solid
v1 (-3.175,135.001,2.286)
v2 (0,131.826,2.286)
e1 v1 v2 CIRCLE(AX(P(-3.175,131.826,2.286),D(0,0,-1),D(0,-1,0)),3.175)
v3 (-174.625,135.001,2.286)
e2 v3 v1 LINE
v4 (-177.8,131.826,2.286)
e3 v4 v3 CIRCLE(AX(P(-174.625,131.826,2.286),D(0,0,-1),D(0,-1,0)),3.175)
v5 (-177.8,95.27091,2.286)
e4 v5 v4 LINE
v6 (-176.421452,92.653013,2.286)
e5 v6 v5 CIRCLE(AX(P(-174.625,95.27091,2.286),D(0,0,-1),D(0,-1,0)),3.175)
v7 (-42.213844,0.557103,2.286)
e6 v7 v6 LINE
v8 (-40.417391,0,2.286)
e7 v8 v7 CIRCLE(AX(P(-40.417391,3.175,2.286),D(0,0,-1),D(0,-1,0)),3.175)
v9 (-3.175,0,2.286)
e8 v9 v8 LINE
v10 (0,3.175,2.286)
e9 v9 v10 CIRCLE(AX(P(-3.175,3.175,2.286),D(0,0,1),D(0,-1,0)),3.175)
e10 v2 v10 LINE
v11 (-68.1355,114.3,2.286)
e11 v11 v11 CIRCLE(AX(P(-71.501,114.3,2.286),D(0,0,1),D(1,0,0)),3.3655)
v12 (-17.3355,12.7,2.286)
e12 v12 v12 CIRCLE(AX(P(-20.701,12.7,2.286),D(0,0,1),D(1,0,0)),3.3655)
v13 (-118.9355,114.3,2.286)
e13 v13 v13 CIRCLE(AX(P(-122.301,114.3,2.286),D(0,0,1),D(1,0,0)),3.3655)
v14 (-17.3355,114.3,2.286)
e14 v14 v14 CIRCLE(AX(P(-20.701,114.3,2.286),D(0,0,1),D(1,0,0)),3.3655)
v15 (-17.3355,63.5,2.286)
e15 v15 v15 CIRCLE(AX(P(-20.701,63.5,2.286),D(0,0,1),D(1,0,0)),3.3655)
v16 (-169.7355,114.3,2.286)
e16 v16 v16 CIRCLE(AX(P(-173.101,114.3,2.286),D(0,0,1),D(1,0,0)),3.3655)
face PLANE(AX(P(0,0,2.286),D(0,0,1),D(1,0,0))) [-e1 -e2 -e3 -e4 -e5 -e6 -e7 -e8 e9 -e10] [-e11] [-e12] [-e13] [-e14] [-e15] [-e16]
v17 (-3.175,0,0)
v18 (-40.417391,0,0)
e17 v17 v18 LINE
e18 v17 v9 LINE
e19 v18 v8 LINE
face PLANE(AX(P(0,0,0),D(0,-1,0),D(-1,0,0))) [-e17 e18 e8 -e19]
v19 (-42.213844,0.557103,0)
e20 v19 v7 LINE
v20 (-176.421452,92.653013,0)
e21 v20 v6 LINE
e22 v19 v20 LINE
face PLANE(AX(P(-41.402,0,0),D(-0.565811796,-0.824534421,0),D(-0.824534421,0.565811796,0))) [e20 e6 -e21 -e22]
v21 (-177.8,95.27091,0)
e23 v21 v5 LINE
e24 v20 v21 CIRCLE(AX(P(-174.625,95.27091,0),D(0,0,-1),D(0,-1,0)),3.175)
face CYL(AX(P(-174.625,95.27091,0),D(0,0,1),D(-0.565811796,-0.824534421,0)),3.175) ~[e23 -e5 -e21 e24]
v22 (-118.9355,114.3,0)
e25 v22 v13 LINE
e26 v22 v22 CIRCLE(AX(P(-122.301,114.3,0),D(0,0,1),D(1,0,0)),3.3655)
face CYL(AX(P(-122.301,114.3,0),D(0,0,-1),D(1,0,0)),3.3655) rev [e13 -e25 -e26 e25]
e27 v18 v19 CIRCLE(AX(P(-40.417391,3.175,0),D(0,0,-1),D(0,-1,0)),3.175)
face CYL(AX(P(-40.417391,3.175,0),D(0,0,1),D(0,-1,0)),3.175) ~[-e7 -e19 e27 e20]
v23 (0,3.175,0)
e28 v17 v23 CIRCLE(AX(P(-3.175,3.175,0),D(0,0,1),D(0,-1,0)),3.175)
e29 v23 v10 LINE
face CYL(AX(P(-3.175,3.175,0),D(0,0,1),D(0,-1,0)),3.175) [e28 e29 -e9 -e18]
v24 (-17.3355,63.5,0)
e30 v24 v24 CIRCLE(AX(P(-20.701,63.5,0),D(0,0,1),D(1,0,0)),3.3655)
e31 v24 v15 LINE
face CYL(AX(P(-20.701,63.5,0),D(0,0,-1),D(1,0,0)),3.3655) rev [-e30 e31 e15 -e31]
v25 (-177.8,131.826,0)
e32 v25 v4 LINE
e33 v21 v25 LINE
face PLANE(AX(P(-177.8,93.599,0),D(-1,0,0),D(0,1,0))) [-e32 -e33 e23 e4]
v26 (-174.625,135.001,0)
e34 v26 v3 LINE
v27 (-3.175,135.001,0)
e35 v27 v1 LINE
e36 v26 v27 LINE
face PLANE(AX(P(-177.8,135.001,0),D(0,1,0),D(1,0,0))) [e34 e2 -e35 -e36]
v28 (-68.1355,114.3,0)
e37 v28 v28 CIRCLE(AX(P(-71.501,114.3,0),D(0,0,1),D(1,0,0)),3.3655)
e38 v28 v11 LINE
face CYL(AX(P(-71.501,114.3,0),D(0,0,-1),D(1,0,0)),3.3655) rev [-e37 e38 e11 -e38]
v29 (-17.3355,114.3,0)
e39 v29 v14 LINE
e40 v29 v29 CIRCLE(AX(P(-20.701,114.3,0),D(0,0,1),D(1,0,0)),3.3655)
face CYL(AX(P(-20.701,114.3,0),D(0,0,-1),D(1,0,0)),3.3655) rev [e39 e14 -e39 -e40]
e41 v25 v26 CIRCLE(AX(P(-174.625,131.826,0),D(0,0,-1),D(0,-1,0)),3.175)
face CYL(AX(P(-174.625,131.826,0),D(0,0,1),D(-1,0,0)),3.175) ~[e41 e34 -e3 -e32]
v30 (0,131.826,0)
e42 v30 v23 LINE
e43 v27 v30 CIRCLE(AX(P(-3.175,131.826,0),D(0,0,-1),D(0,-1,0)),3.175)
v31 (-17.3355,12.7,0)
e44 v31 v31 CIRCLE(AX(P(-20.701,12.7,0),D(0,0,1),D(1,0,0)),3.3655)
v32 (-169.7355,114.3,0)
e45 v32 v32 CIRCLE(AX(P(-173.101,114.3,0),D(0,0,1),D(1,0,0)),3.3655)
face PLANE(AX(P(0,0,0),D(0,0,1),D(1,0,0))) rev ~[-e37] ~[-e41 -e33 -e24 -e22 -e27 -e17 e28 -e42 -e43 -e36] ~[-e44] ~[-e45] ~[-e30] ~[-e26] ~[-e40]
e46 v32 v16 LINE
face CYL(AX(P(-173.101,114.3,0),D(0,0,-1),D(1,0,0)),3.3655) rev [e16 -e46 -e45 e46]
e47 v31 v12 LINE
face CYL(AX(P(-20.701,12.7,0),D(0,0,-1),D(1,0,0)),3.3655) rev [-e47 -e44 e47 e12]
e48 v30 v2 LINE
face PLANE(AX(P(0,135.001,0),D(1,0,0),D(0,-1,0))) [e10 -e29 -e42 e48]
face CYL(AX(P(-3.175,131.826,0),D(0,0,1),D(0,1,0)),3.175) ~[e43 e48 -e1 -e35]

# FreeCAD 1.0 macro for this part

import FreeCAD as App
import Part
import Sketcher

V = App.Vector
Q = App.Units.Quantity


def edges_at(feature, points):
    """Names of the edges that pass closest to the given points."""
    edges = feature.Shape.Edges
    near = lambda p: min(range(len(edges)), key=lambda i: edges[i].distToShape(Part.Vertex(*p))[0])
    return sorted({f"Edge{near(p) + 1}" for p in points})

doc = App.newDocument("Part")
body = doc.addObject("PartDesign::Body", "Body")

# Sketch on XY plane
sketch1 = doc.addObject("Sketcher::SketchObject", "Sketch")
body.addObject(sketch1)
sketch1.AttachmentSupport = (doc.XY_Plane, [""])
sketch1.MapMode = "FlatFace"
sketch1.addGeometry(Part.LineSegment(V(-41.4, 0, 0), V(0, 0, 0)), False)
sketch1.addGeometry(Part.LineSegment(V(0, 0, 0), V(0, 135, 0)), False)
sketch1.addGeometry(Part.LineSegment(V(0, 135, 0), V(-177.8, 135, 0)), False)
sketch1.addGeometry(Part.LineSegment(V(-177.8, 135, 0), V(-177.8, 93.6, 0)), False)
sketch1.addGeometry(Part.LineSegment(V(-177.8, 93.6, 0), V(-41.4, 0, 0)), False)
sketch1.addGeometry(Part.Circle(V(-20.7, 12.7, 0), V(0, 0, 1), 3.4), False)
sketch1.addGeometry(Part.Circle(V(-20.7, 63.5, 0), V(0, 0, 1), 3.4), False)
sketch1.addGeometry(Part.Circle(V(-173.1, 114.3, 0), V(0, 0, 1), 3.4), False)
sketch1.addGeometry(Part.Circle(V(-122.3, 114.3, 0), V(0, 0, 1), 3.4), False)
sketch1.addGeometry(Part.Circle(V(-71.5, 114.3, 0), V(0, 0, 1), 3.4), False)
sketch1.addGeometry(Part.Circle(V(-20.7, 114.3, 0), V(0, 0, 1), 3.4), False)
sketch1.addConstraint(Sketcher.Constraint("Coincident", 0, 2, 1, 1))
sketch1.addConstraint(Sketcher.Constraint("Coincident", 1, 2, 2, 1))
sketch1.addConstraint(Sketcher.Constraint("Coincident", 2, 2, 3, 1))
sketch1.addConstraint(Sketcher.Constraint("Coincident", 3, 2, 4, 1))
sketch1.addConstraint(Sketcher.Constraint("Coincident", 4, 2, 0, 1))
sketch1.addConstraint(Sketcher.Constraint("Horizontal", 0))
sketch1.addConstraint(Sketcher.Constraint("Vertical", 1))
sketch1.addConstraint(Sketcher.Constraint("Horizontal", 2))
sketch1.addConstraint(Sketcher.Constraint("Vertical", 3))
sketch1.addConstraint(Sketcher.Constraint("Coincident", 0, 2, -1, 1))
sketch1.addConstraint(Sketcher.Constraint("Equal", 5, 6))
sketch1.addConstraint(Sketcher.Constraint("Equal", 6, 7))
sketch1.addConstraint(Sketcher.Constraint("Equal", 7, 8))
sketch1.addConstraint(Sketcher.Constraint("Equal", 8, 9))
sketch1.addConstraint(Sketcher.Constraint("Equal", 9, 10))
sketch1.addConstraint(Sketcher.Constraint("Horizontal", 7, 3, 8, 3))
sketch1.addConstraint(Sketcher.Constraint("Horizontal", 8, 3, 9, 3))
sketch1.addConstraint(Sketcher.Constraint("Horizontal", 9, 3, 10, 3))
sketch1.addConstraint(Sketcher.Constraint("Vertical", 5, 3, 6, 3))
sketch1.addConstraint(Sketcher.Constraint("Vertical", 6, 3, 10, 3))
sketch1.addConstraint(Sketcher.Constraint("Equal", 0, 3))
sketch1.addConstraint(Sketcher.Constraint("DistanceX", 2, 2, 2, 1, Q("7 in")))
sketch1.addConstraint(Sketcher.Constraint("Diameter", 5, Q("0.265 in")))
sketch1.addConstraint(Sketcher.Constraint("DistanceY", 5, 3, 6, 3, Q("2 in")))
sketch1.addConstraint(Sketcher.Constraint("DistanceY", 6, 3, 7, 3, Q("2 in")))
sketch1.addConstraint(Sketcher.Constraint("DistanceX", 7, 3, 8, 3, Q("2 in")))
sketch1.addConstraint(Sketcher.Constraint("DistanceX", 8, 3, 9, 3, Q("2 in")))
sketch1.addConstraint(Sketcher.Constraint("DistanceX", 9, 3, 6, 3, Q("2 in")))
sketch1.addConstraint(Sketcher.Constraint("DistanceX", 0, 1, 0, 2, Q("1.63 in")))
sketch1.addConstraint(Sketcher.Constraint("DistanceY", -1, 1, 5, 3, Q("0.5 in")))
sketch1.addConstraint(Sketcher.Constraint("DistanceY", 1, 1, 1, 2, Q("5.315 in")))
sketch1.addConstraint(Sketcher.Constraint("DistanceX", 5, 3, -1, 1, Q("0.815 in")))
pad1 = doc.addObject("PartDesign::Pad", "Pad")
body.addObject(pad1)
pad1.Profile = sketch1
pad1.Length = Q("0.09 in")
doc.recompute()

fillet = doc.addObject("PartDesign::Fillet", "Fillet")
body.addObject(fillet)
fillet.Base = (pad1, edges_at(pad1, [
    (0, 135.001, 1.143),
    (0, 0, 1.143),
    (-41.402, 0, 1.143),
    (-177.8, 93.599, 1.143),
    (-177.8, 135.001, 1.143),
]))
fillet.Radius = Q("0.125 in")

doc.recompute()
